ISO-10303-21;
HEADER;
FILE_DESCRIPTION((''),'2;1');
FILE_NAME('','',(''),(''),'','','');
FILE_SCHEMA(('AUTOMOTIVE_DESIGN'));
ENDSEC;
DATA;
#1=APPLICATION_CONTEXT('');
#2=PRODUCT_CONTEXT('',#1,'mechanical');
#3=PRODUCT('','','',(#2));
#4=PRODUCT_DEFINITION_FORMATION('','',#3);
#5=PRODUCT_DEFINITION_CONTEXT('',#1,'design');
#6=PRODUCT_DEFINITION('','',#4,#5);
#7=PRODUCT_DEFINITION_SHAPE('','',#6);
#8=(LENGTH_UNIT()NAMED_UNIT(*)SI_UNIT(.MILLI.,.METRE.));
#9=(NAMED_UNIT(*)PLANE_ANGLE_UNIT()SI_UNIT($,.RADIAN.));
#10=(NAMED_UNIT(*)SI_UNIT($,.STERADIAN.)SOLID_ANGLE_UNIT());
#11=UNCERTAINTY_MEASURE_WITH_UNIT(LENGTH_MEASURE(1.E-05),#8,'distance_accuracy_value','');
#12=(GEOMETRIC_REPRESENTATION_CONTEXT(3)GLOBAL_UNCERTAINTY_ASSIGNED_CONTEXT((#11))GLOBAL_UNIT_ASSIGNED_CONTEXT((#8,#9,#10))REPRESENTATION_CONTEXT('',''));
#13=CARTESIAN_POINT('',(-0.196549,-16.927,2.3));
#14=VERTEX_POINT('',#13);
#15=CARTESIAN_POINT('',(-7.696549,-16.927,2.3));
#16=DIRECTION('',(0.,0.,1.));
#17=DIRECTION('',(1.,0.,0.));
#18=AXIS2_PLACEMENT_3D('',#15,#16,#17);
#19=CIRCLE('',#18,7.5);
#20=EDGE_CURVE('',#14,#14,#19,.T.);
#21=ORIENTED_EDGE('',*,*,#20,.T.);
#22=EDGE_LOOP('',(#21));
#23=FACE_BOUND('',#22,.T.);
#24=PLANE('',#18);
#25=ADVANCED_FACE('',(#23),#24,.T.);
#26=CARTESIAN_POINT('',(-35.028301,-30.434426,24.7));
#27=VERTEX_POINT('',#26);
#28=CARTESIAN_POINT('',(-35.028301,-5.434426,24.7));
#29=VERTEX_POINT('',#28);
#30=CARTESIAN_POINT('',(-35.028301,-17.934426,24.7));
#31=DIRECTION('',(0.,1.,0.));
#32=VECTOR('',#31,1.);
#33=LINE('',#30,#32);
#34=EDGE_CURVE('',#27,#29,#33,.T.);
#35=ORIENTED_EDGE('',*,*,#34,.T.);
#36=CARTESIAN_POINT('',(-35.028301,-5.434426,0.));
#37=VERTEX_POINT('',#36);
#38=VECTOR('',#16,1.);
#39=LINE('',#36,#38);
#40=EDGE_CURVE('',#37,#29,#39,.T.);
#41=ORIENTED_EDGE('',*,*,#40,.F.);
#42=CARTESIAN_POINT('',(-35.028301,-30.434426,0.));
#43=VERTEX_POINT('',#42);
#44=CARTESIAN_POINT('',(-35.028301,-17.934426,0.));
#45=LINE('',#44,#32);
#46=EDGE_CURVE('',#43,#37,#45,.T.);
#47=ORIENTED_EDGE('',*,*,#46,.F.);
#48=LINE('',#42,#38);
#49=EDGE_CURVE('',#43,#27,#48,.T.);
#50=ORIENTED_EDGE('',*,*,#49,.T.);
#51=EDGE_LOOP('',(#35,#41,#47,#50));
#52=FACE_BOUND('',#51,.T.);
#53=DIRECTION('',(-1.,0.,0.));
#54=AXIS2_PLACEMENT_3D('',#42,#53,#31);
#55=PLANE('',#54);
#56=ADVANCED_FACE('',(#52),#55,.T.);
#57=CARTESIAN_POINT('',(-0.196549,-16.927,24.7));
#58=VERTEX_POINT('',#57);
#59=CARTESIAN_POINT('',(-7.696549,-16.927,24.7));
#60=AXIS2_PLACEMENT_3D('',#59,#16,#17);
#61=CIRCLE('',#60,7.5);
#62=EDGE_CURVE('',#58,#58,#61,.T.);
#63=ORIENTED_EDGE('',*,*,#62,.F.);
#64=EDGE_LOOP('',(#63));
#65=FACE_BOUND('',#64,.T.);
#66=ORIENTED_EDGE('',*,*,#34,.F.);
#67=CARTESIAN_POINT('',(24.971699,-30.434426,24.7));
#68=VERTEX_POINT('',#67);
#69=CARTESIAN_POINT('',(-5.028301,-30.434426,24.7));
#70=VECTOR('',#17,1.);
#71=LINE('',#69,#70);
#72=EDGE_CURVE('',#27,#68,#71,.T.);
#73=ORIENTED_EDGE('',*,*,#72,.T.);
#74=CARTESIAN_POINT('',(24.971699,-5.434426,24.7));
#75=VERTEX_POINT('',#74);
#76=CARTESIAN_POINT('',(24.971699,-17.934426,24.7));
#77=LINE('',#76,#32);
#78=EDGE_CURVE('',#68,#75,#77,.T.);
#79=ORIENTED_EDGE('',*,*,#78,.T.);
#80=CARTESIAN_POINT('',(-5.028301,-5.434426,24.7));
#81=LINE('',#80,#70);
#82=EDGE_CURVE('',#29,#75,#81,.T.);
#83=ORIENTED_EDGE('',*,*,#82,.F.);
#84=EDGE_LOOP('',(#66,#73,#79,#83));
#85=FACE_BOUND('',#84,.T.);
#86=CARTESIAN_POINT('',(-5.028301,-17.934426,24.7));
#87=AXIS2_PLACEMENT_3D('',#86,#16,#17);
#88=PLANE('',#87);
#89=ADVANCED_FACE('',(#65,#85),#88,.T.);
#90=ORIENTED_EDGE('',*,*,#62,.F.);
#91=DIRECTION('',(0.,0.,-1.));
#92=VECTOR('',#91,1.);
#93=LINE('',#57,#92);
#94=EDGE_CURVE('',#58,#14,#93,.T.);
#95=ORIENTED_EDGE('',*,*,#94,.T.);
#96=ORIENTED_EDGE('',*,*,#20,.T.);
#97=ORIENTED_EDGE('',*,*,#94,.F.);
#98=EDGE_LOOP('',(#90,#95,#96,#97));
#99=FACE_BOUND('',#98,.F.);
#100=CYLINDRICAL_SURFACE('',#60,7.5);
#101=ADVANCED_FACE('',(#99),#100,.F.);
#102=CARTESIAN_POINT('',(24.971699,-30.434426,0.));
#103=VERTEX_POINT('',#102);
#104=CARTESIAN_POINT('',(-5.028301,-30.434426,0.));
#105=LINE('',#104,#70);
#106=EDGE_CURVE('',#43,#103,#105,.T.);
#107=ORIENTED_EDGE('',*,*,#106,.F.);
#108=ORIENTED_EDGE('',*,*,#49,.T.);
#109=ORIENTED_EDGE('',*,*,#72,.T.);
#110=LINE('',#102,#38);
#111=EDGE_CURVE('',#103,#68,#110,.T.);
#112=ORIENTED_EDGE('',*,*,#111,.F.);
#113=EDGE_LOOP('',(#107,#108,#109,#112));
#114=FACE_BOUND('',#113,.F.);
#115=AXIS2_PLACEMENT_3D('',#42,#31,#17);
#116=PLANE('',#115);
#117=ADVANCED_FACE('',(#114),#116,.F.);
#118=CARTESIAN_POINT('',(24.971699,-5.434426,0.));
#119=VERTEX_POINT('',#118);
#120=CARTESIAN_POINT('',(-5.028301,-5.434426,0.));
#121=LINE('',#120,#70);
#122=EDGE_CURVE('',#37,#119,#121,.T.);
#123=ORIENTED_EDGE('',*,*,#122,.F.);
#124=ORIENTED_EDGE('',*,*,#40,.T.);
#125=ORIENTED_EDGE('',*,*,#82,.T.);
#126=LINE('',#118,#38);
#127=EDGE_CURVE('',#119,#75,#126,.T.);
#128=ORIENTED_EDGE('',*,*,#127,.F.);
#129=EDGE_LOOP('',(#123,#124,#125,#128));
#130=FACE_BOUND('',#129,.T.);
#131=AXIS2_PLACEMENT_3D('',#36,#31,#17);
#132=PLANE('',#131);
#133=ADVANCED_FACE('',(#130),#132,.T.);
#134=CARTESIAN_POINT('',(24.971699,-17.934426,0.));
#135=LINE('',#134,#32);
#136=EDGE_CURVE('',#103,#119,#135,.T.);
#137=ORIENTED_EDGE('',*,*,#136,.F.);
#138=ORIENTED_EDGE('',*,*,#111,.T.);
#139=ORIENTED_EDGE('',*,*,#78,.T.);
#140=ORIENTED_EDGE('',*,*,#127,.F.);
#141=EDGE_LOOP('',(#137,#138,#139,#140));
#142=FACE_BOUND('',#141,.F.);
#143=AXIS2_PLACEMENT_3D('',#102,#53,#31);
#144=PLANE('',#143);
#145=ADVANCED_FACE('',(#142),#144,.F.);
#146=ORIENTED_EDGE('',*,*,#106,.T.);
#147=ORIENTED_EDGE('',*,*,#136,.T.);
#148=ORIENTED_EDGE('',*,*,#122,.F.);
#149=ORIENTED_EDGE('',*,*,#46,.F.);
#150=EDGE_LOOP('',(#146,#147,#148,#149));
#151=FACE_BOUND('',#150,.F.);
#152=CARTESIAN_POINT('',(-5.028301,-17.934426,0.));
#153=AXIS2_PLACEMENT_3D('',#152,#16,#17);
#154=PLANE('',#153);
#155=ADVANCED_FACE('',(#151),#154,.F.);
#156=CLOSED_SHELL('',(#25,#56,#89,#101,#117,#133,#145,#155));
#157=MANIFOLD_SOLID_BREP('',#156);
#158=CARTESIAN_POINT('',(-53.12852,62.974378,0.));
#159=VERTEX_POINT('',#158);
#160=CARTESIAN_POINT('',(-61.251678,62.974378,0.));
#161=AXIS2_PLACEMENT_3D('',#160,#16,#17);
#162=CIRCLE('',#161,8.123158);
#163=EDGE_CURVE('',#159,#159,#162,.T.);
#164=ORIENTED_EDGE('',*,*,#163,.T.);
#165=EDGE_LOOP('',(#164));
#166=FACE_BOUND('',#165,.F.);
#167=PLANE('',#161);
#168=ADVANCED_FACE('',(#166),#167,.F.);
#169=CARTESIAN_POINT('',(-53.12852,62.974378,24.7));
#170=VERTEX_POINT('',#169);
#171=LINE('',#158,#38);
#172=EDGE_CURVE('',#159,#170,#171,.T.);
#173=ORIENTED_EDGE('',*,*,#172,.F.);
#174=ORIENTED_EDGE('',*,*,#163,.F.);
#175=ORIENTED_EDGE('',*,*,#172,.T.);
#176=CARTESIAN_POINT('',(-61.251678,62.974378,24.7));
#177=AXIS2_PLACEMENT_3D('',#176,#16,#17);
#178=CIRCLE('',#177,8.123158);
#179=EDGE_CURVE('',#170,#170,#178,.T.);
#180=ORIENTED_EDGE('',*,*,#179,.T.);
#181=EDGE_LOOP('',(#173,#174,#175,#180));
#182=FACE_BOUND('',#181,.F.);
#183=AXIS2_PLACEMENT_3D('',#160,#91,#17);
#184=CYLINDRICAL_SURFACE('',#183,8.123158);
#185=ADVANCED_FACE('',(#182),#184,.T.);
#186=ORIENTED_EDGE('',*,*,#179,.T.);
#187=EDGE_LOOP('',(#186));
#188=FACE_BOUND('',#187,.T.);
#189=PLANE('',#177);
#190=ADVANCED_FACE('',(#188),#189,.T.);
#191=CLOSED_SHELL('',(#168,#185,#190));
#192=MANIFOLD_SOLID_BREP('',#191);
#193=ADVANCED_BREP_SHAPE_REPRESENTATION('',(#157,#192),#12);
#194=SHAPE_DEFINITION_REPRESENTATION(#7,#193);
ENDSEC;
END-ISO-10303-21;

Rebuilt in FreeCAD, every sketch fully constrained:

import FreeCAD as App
import Part
import Sketcher

doc = App.newDocument("Part")
body = doc.addObject("PartDesign::Body", "Body")
body.AllowCompound = True

# Sketch on XY plane
sketch1 = body.newObject("Sketcher::SketchObject", "Sketch")
sketch1.AttachmentSupport = (doc.getObject("XY_Plane"), [""])
sketch1.MapMode = "FlatFace"
sketch1.addGeometry([
    Part.LineSegment(App.Vector(-35.028301, -5.434426, 0), App.Vector(-35.028301, -30.434426, 0)),  # 0
    Part.LineSegment(App.Vector(-35.028301, -30.434426, 0), App.Vector(24.971699, -30.434426, 0)),  # 1
    Part.LineSegment(App.Vector(24.971699, -30.434426, 0), App.Vector(24.971699, -5.434426, 0)),  # 2
    Part.LineSegment(App.Vector(24.971699, -5.434426, 0), App.Vector(-35.028301, -5.434426, 0)),  # 3
    Part.Circle(App.Vector(-61.251678, 62.974378, 0), App.Vector(0, 0, 1), 8.123158),  # 4
], False)
sketch1.addConstraint([
    Sketcher.Constraint("Coincident", 0, 2, 1, 1),
    Sketcher.Constraint("Coincident", 1, 2, 2, 1),
    Sketcher.Constraint("Coincident", 2, 2, 3, 1),
    Sketcher.Constraint("Coincident", 3, 2, 0, 1),
    Sketcher.Constraint("Vertical", 0),
    Sketcher.Constraint("Horizontal", 1),
    Sketcher.Constraint("Vertical", 2),
    Sketcher.Constraint("Horizontal", 3),
    Sketcher.Constraint("DistanceX", 1, 1, 1, 2, 60.0),
    Sketcher.Constraint("DistanceY", 0, 2, 0, 1, 25.0),
    Sketcher.Constraint("Diameter", 4, 16.246316),
    Sketcher.Constraint("DistanceX", 0, 2, -1, 1, 35.028301),
    Sketcher.Constraint("DistanceY", -1, 1, 4, 3, 62.974378),
    Sketcher.Constraint("DistanceX", 4, 3, -1, 1, 61.251678),
    Sketcher.Constraint("DistanceY", 0, 2, -1, 1, 30.434426),
])
pad1 = body.newObject("PartDesign::Pad", "Pad")
pad1.Profile = sketch1
pad1.Length = 24.7

# Sketch on XY plane
sketch2 = body.newObject("Sketcher::SketchObject", "Sketch001")
sketch2.AttachmentSupport = (doc.getObject("XY_Plane"), [""])
sketch2.MapMode = "FlatFace"
sketch2.AttachmentOffset = App.Placement(App.Vector(0, 0, 24.7), App.Rotation())
sketch2.addGeometry(Part.Circle(App.Vector(-7.696549, -16.927, 0), App.Vector(0, 0, 1), 7.5), False)
sketch2.addConstraint([
    Sketcher.Constraint("Diameter", 0, 15.0),
    Sketcher.Constraint("DistanceY", 0, 3, -1, 1, 16.927),
    Sketcher.Constraint("DistanceX", 0, 3, -1, 1, 7.696549),
])
pocket1 = body.newObject("PartDesign::Pocket", "Pocket")
pocket1.Profile = sketch2
pocket1.Length = 22.4

doc.recompute()
